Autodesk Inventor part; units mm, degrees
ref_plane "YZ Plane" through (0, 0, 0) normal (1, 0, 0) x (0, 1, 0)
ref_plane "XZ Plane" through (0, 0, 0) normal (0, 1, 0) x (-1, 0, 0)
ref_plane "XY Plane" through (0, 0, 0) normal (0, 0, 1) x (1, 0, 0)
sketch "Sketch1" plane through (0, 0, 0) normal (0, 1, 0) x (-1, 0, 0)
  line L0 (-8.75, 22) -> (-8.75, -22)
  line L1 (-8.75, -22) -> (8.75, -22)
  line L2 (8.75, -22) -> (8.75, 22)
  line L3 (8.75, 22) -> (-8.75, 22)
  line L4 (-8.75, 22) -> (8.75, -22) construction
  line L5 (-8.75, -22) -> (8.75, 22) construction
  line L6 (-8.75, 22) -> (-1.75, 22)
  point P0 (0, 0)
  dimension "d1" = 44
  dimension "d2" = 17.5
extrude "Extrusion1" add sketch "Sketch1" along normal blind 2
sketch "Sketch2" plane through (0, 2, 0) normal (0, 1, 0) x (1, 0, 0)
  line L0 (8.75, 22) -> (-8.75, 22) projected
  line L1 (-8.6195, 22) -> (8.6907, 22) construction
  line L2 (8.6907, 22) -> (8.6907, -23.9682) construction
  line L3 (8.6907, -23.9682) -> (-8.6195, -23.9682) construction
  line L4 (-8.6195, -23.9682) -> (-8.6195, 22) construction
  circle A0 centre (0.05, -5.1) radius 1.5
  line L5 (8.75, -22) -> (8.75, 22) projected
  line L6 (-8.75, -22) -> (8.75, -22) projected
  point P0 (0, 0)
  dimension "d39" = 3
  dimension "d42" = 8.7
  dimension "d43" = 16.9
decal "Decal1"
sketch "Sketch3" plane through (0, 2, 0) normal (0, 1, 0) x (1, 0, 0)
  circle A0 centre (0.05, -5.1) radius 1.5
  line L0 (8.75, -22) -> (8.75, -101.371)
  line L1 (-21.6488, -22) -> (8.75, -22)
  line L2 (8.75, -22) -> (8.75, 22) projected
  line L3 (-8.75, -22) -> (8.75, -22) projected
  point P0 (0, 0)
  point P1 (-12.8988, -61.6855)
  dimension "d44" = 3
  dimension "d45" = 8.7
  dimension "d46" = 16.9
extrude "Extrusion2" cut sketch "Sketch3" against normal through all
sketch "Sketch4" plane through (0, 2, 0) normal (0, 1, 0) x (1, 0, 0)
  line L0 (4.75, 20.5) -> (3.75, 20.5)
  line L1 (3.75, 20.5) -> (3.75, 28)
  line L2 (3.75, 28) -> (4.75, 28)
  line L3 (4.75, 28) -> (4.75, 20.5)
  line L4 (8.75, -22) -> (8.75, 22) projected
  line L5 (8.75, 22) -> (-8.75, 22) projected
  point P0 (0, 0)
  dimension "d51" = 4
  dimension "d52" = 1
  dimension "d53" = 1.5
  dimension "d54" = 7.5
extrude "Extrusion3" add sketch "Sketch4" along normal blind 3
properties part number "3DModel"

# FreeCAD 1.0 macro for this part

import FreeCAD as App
import Part
import Sketcher
from FreeCAD import Vector


def add_polygon(sketch, points):
    """Adds a closed chain of lines whose ends are joined by coincident constraints."""
    first, n = sketch.GeometryCount, len(points)
    for a, b in zip(points, points[1:] + points[:1]):
        sketch.addGeometry(Part.LineSegment(App.Vector(*a, 0), App.Vector(*b, 0)), False)
    for i in range(n):
        sketch.addConstraint(Sketcher.Constraint("Coincident", first + i, 2, first + (i + 1) % n, 1))

doc = App.newDocument("Part")
body = doc.addObject("PartDesign::Body", "Body")

sketch1 = doc.addObject("Sketcher::SketchObject", "Sketch")
body.addObject(sketch1)
sketch1.AttachmentSupport = (doc.XZ_Plane, [""])
sketch1.MapMode = "FlatFace"
add_polygon(sketch1, [(-9, 22), (9, 22), (9, -22), (-9, -22)])
sketch1.addConstraint([
    Sketcher.Constraint("Horizontal", 0),
    Sketcher.Constraint("Vertical", 1),
    Sketcher.Constraint("Horizontal", 2),
    Sketcher.Constraint("Vertical", 3),
    Sketcher.Constraint("Symmetric", 0, 2, 2, 2, -1, 1),
    Sketcher.Constraint("DistanceY", 1, 2, 1, 1, 44.0),
    Sketcher.Constraint("DistanceX", 0, 1, 0, 2, 17.5),
])
pad1 = doc.addObject("PartDesign::Pad", "Pad")
body.addObject(pad1)
pad1.Profile = sketch1
pad1.Length = 2
pad1.Reversed = True

sketch2 = doc.addObject("Sketcher::SketchObject", "Sketch001")
body.addObject(sketch2)
sketch2.AttachmentSupport = (doc.XZ_Plane, [""])
sketch2.MapMode = "FlatFace"
sketch2.AttachmentOffset = App.Placement(Vector(0, 0, -2), App.Rotation())
sketch2.addGeometry(Part.Circle(Vector(0.1, 5.1, 0), Vector(0, 0, 1), 1.5), False)
sketch2.addConstraint([
    Sketcher.Constraint("Diameter", 0, 3.0),
    Sketcher.Constraint("DistanceY", -1, 1, 0, 3, 5.1),
    Sketcher.Constraint("DistanceX", -1, 1, 0, 3, 0.05),
])
pocket1 = doc.addObject("PartDesign::Pocket", "Pocket")
body.addObject(pocket1)
pocket1.Profile = sketch2
pocket1.Type = "ThroughAll"
pocket1.Reversed = True

sketch3 = doc.addObject("Sketcher::SketchObject", "Sketch002")
body.addObject(sketch3)
sketch3.AttachmentSupport = (doc.XZ_Plane, [""])
sketch3.MapMode = "FlatFace"
sketch3.AttachmentOffset = App.Placement(Vector(0, 0, -2), App.Rotation())
add_polygon(sketch3, [(3.8, -20.5), (4.8, -20.5), (4.8, -28), (3.8, -28)])
sketch3.addConstraint([
    Sketcher.Constraint("Horizontal", 0),
    Sketcher.Constraint("Vertical", 1),
    Sketcher.Constraint("Horizontal", 2),
    Sketcher.Constraint("Vertical", 3),
    Sketcher.Constraint("DistanceX", 0, 1, 0, 2, 1.0),
    Sketcher.Constraint("DistanceY", 1, 2, 1, 1, 7.5),
    Sketcher.Constraint("DistanceY", 1, 2, -1, 1, 28.0),
    Sketcher.Constraint("DistanceX", -1, 1, 0, 2, 4.75),
])
pad2 = doc.addObject("PartDesign::Pad", "Pad001")
body.addObject(pad2)
pad2.Profile = sketch3
pad2.Length = 3
pad2.Reversed = True

doc.recompute()
